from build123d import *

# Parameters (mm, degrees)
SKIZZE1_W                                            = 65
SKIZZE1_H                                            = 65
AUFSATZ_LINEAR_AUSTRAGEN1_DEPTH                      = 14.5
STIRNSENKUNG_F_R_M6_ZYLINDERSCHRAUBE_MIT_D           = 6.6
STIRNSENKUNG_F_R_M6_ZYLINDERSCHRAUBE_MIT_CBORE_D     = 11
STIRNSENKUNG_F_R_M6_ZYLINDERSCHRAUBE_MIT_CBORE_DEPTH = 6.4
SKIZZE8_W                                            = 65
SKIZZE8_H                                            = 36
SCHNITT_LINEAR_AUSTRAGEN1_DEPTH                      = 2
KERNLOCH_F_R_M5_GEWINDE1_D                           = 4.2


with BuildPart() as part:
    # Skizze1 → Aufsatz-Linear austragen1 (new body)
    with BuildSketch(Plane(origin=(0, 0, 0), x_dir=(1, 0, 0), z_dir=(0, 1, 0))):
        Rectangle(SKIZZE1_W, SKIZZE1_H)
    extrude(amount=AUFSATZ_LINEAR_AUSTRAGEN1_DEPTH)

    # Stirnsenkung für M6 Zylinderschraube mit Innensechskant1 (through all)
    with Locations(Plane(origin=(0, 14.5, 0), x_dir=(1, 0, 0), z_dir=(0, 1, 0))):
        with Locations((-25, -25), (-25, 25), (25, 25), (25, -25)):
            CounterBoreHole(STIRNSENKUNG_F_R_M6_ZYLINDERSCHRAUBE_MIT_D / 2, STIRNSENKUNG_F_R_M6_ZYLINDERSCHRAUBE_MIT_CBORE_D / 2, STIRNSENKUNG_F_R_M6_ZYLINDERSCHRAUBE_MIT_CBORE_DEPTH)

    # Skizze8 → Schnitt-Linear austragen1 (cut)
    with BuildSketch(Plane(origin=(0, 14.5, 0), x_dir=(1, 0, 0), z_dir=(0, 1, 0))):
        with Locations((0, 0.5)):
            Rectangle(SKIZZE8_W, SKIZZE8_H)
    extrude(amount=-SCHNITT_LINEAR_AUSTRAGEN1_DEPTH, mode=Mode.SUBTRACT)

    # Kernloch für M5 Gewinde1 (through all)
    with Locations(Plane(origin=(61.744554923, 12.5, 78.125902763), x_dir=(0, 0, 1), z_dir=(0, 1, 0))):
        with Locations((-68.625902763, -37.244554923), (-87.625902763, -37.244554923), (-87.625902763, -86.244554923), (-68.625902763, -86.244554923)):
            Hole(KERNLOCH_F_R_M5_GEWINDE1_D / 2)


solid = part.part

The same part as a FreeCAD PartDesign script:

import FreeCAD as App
import Part
import Sketcher
from FreeCAD import Vector
Q = App.Units.Quantity

doc = App.newDocument("Part")
params = doc.addObject("Spreadsheet::Sheet", "Params")
for row, (alias, value) in enumerate([
    ("sketch1_width", "65 mm"),
    ("pad1_length", "14.5 mm"),
    ("sketch2_diameter", "6.6 mm"),
    ("hole_diameter", "6.6 mm"),
    ("hole_cbore_diameter", "11 mm"),
    ("hole_cbore_depth", "6.4 mm"),
    ("sketch3_width", "65 mm"),
    ("sketch3_height", "36 mm"),
    ("pocket1_length", "2 mm"),
    ("sketch4_diameter", "4.2 mm"),
    ("hole2_diameter", "4.2 mm"),
], start=1):
    params.set(f"A{row}", alias)
    params.set(f"B{row}", "=" + value)
    params.setAlias(f"B{row}", alias)

body = doc.addObject("PartDesign::Body", "Body")

# Sketch on XZ plane
sketch1 = doc.addObject("Sketcher::SketchObject", "Sketch")
body.addObject(sketch1)
sketch1.AttachmentSupport = (doc.XZ_Plane, [""])
sketch1.MapMode = "FlatFace"
sketch1.addGeometry([
    Part.LineSegment(Vector(-32, -32, 0), Vector(-32, 32, 0)),
    Part.LineSegment(Vector(-32, 32, 0), Vector(32, 32, 0)),
    Part.LineSegment(Vector(32, 32, 0), Vector(32, -32, 0)),
    Part.LineSegment(Vector(32, -32, 0), Vector(-32, -32, 0)),
], False)
sketch1.addConstraint([
    Sketcher.Constraint("Coincident", 0, 2, 1, 1),
    Sketcher.Constraint("Coincident", 1, 2, 2, 1),
    Sketcher.Constraint("Coincident", 2, 2, 3, 1),
    Sketcher.Constraint("Coincident", 3, 2, 0, 1),
    Sketcher.Constraint("Vertical", 0),
    Sketcher.Constraint("Horizontal", 1),
    Sketcher.Constraint("Vertical", 2),
    Sketcher.Constraint("Horizontal", 3),
    Sketcher.Constraint("Symmetric", 0, 2, 2, 2, -1, 1),
    Sketcher.Constraint("Equal", 3, 0),
    Sketcher.Constraint("DistanceX", 1, 1, 1, 2, Q("65 mm")),
])
sketch1.setExpression("Constraints[10]", "Params.sketch1_width")
pad1 = doc.addObject("PartDesign::Pad", "Pad")
body.addObject(pad1)
pad1.Profile = sketch1
pad1.setExpression("Length", "Params.pad1_length")
pad1.Reversed = True

# Sketch on XZ plane
sketch2 = doc.addObject("Sketcher::SketchObject", "Sketch001")
body.addObject(sketch2)
sketch2.AttachmentSupport = (doc.XZ_Plane, [""])
sketch2.MapMode = "FlatFace"
sketch2.AttachmentOffset = App.Placement(Vector(0, 0, -14.5), App.Rotation())
sketch2.addGeometry([
    Part.Circle(Vector(-25, 25, 0), Vector(0, 0, 1), 3.3),
    Part.Circle(Vector(-25, -25, 0), Vector(0, 0, 1), 3.3),
    Part.Circle(Vector(25, -25, 0), Vector(0, 0, 1), 3.3),
    Part.Circle(Vector(25, 25, 0), Vector(0, 0, 1), 3.3),
], False)
sketch2.addConstraint([
    Sketcher.Constraint("Equal", 0, 1),
    Sketcher.Constraint("Equal", 1, 2),
    Sketcher.Constraint("Equal", 2, 3),
    Sketcher.Constraint("Symmetric", 0, 3, 2, 3, -1, 1),
    Sketcher.Constraint("Symmetric", 1, 3, 3, 3, -1, 1),
    Sketcher.Constraint("Symmetric", 1, 3, 2, 3, -2),
    Sketcher.Constraint("Diameter", 0, Q("6.6 mm")),
    Sketcher.Constraint("DistanceX", 0, 3, -1, 1, Q("25 mm")),
    Sketcher.Constraint("DistanceY", -1, 1, 0, 3, Q("25 mm")),
])
sketch2.setExpression("Constraints[6]", "Params.sketch2_diameter")
doc.recompute()
hole = doc.addObject("PartDesign::Hole", "Hole")
body.addObject(hole)
hole.Profile = sketch2
hole.ThreadType = "None"
hole.setExpression("Diameter", "Params.hole_diameter")
hole.DepthType = "ThroughAll"
hole.HoleCutType = "Counterbore"
hole.setExpression("HoleCutDiameter", "Params.hole_cbore_diameter")
hole.setExpression("HoleCutDepth", "Params.hole_cbore_depth")
hole.Reversed = True

# Sketch on XZ plane
sketch3 = doc.addObject("Sketcher::SketchObject", "Sketch002")
body.addObject(sketch3)
sketch3.AttachmentSupport = (doc.XZ_Plane, [""])
sketch3.MapMode = "FlatFace"
sketch3.AttachmentOffset = App.Placement(Vector(0, 0, -14.5), App.Rotation())
sketch3.addGeometry([
    Part.LineSegment(Vector(-32, -18, 0), Vector(-32, 18, 0)),
    Part.LineSegment(Vector(-32, 18, 0), Vector(32, 18, 0)),
    Part.LineSegment(Vector(32, 18, 0), Vector(32, -18, 0)),
    Part.LineSegment(Vector(32, -18, 0), Vector(-32, -18, 0)),
], False)
sketch3.addConstraint([
    Sketcher.Constraint("Coincident", 0, 2, 1, 1),
    Sketcher.Constraint("Coincident", 1, 2, 2, 1),
    Sketcher.Constraint("Coincident", 2, 2, 3, 1),
    Sketcher.Constraint("Coincident", 3, 2, 0, 1),
    Sketcher.Constraint("Vertical", 0),
    Sketcher.Constraint("Horizontal", 1),
    Sketcher.Constraint("Vertical", 2),
    Sketcher.Constraint("Horizontal", 3),
    Sketcher.Constraint("DistanceX", 1, 1, 1, 2, Q("65 mm")),
    Sketcher.Constraint("DistanceY", 0, 1, 0, 2, Q("36 mm")),
    Sketcher.Constraint("DistanceX", 0, 2, -1, 1, Q("32.5 mm")),
    Sketcher.Constraint("DistanceY", -1, 1, 0, 2, Q("17.5 mm")),
])
sketch3.setExpression("Constraints[8]", "Params.sketch3_width")
sketch3.setExpression("Constraints[9]", "Params.sketch3_height")
pocket1 = doc.addObject("PartDesign::Pocket", "Pocket")
body.addObject(pocket1)
pocket1.Profile = sketch3
pocket1.setExpression("Length", "Params.pocket1_length")
pocket1.Reversed = True

# Sketch on XZ plane
sketch4 = doc.addObject("Sketcher::SketchObject", "Sketch003")
body.addObject(sketch4)
sketch4.AttachmentSupport = (doc.XZ_Plane, [""])
sketch4.MapMode = "FlatFace"
sketch4.AttachmentOffset = App.Placement(Vector(0, 0, -12.5), App.Rotation())
sketch4.addGeometry([
    Part.Circle(Vector(24.5, 9.5, 0), Vector(0, 0, 1), 2.1),
    Part.Circle(Vector(24.5, -9.5, 0), Vector(0, 0, 1), 2.1),
    Part.Circle(Vector(-24.5, -9.5, 0), Vector(0, 0, 1), 2.1),
    Part.Circle(Vector(-24.5, 9.5, 0), Vector(0, 0, 1), 2.1),
], False)
sketch4.addConstraint([
    Sketcher.Constraint("Equal", 0, 1),
    Sketcher.Constraint("Equal", 1, 2),
    Sketcher.Constraint("Equal", 2, 3),
    Sketcher.Constraint("Symmetric", 0, 3, 2, 3, -1, 1),
    Sketcher.Constraint("Symmetric", 1, 3, 3, 3, -1, 1),
    Sketcher.Constraint("Symmetric", 1, 3, 2, 3, -2),
    Sketcher.Constraint("Diameter", 0, Q("4.2 mm")),
    Sketcher.Constraint("DistanceY", 1, 3, 0, 3, Q("19 mm")),
    Sketcher.Constraint("DistanceX", 2, 3, 1, 3, Q("49 mm")),
])
sketch4.setExpression("Constraints[6]", "Params.sketch4_diameter")
doc.recompute()
hole2 = doc.addObject("PartDesign::Hole", "Hole001")
body.addObject(hole2)
hole2.Profile = sketch4
hole2.ThreadType = "None"
hole2.setExpression("Diameter", "Params.hole2_diameter")
hole2.DepthType = "ThroughAll"
hole2.Reversed = True

doc.recompute()
